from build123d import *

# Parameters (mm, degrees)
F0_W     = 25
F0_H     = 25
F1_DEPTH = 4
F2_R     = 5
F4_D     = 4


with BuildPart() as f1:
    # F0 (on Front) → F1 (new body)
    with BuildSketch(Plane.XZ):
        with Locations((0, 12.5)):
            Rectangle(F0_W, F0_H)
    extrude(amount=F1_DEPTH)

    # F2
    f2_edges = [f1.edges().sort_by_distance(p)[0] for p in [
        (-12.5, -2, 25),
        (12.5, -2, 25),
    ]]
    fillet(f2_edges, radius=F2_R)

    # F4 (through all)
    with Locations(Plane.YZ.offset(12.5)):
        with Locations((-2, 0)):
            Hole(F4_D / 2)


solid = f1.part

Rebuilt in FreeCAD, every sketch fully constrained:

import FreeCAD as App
import Part
import Sketcher


def edges_at(feature, points):
    """Names of the edges that pass closest to the given points."""
    edges = feature.Shape.Edges
    near = lambda p: min(range(len(edges)), key=lambda i: edges[i].distToShape(Part.Vertex(*p))[0])
    return sorted({f"Edge{near(p) + 1}" for p in points})


def add_polygon(sketch, points):
    """Adds a closed chain of lines whose ends are joined by coincident constraints."""
    first, n = sketch.GeometryCount, len(points)
    for a, b in zip(points, points[1:] + points[:1]):
        sketch.addGeometry(Part.LineSegment(App.Vector(*a, 0), App.Vector(*b, 0)), False)
    for i in range(n):
        sketch.addConstraint(Sketcher.Constraint("Coincident", first + i, 2, first + (i + 1) % n, 1))

doc = App.newDocument("Part")
body = doc.addObject("PartDesign::Body", "Body")

sketch1 = doc.addObject("Sketcher::SketchObject", "Sketch")
body.addObject(sketch1)
sketch1.AttachmentSupport = (doc.XZ_Plane, [""])
sketch1.MapMode = "FlatFace"
add_polygon(sketch1, [(-12, 25), (-12, 0), (12, 0), (12, 25)])
sketch1.addConstraint([
    Sketcher.Constraint("Vertical", 0),
    Sketcher.Constraint("Horizontal", 1),
    Sketcher.Constraint("Vertical", 2),
    Sketcher.Constraint("Horizontal", 3),
    Sketcher.Constraint("Symmetric", 0, 2, 1, 2, -1, 1),
    Sketcher.Constraint("Equal", 3, 0),
    Sketcher.Constraint("DistanceX", 1, 1, 1, 2, 25.0),
])
pad1 = doc.addObject("PartDesign::Pad", "Pad")
body.addObject(pad1)
pad1.Profile = sketch1
pad1.Length = 4
doc.recompute()

fillet = doc.addObject("PartDesign::Fillet", "Fillet")
body.addObject(fillet)
fillet.Base = (pad1, edges_at(pad1, [(-12.5, -2, 25), (12.5, -2, 25)]))
fillet.Radius = 5

sketch2 = doc.addObject("Sketcher::SketchObject", "Sketch001")
body.addObject(sketch2)
sketch2.AttachmentSupport = (doc.YZ_Plane, [""])
sketch2.MapMode = "FlatFace"
sketch2.AttachmentOffset = App.Placement(App.Vector(0, 0, 12.5), App.Rotation())
sketch2.addGeometry(Part.Circle(App.Vector(-2, 0, 0), App.Vector(0, 0, 1), 2), False)
sketch2.addConstraint([
    Sketcher.Constraint("PointOnObject", 0, 3, -1),
    Sketcher.Constraint("Diameter", 0, 4.0),
    Sketcher.Constraint("DistanceX", 0, 3, -1, 1, 2.0),
])
doc.recompute()
hole = doc.addObject("PartDesign::Hole", "Hole")
body.addObject(hole)
hole.Profile = sketch2
hole.ThreadType = "None"
hole.Diameter = 4
hole.DepthType = "ThroughAll"

doc.recompute()
